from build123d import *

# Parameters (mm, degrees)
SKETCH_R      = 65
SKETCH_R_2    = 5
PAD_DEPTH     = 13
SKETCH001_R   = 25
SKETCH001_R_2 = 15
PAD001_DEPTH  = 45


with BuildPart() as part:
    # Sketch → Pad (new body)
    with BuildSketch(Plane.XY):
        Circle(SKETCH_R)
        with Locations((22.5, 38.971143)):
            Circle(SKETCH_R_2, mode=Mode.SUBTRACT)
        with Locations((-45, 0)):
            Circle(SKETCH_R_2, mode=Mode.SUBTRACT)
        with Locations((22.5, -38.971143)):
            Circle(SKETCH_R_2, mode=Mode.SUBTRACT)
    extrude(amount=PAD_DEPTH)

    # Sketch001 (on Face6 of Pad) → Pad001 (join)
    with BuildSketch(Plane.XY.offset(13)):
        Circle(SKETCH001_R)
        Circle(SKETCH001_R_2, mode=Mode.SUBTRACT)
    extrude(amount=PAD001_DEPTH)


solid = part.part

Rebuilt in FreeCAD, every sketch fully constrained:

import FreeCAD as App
import Part
import Sketcher
from FreeCAD import Vector
Q = App.Units.Quantity

doc = App.newDocument("Part")
body = doc.addObject("PartDesign::Body", "Body")

# Sketch on XY plane
sketch1 = body.newObject("Sketcher::SketchObject", "Sketch")
sketch1.AttachmentSupport = (doc.getObject("XY_Plane"), [""])
sketch1.MapMode = "FlatFace"
sketch1.addGeometry([
    Part.Circle(Vector(0, 0, 0), Vector(0, 0, 1), 65),
    Part.Circle(Vector(22, -39, 0), Vector(0, 0, 1), 5),
    Part.Circle(Vector(-45, 0, 0), Vector(0, 0, 1), 5),
    Part.Circle(Vector(22, 39, 0), Vector(0, 0, 1), 5),
], False)
sketch1.addConstraint([
    Sketcher.Constraint("Coincident", 0, 3, -1, 1),
    Sketcher.Constraint("Equal", 1, 2),
    Sketcher.Constraint("Equal", 2, 3),
    Sketcher.Constraint("Symmetric", 1, 3, 3, 3, -1),
    Sketcher.Constraint("PointOnObject", 2, 3, -1),
    Sketcher.Constraint("Diameter", 0, Q("130 mm")),
    Sketcher.Constraint("Diameter", 1, Q("10 mm")),
    Sketcher.Constraint("DistanceX", 2, 3, -1, 1, Q("45 mm")),
    Sketcher.Constraint("DistanceX", -1, 1, 1, 3, Q("22.5 mm")),
    Sketcher.Constraint("DistanceY", 1, 3, -1, 1, Q("38.971143 mm")),
])
pad1 = body.newObject("PartDesign::Pad", "Pad")
pad1.Profile = sketch1
pad1.Length = 13

# Sketch on XY plane
sketch2 = body.newObject("Sketcher::SketchObject", "Sketch001")
sketch2.AttachmentSupport = (doc.getObject("XY_Plane"), [""])
sketch2.MapMode = "FlatFace"
sketch2.AttachmentOffset = App.Placement(Vector(0, 0, 13), App.Rotation())
sketch2.addGeometry([
    Part.Circle(Vector(0, 0, 0), Vector(0, 0, 1), 25),
    Part.Circle(Vector(0, 0, 0), Vector(0, 0, 1), 15),
], False)
sketch2.addConstraint([
    Sketcher.Constraint("Coincident", 0, 3, -1, 1),
    Sketcher.Constraint("Coincident", 1, 3, -1, 1),
    Sketcher.Constraint("Diameter", 0, Q("50 mm")),
    Sketcher.Constraint("Diameter", 1, Q("30 mm")),
])
pad2 = body.newObject("PartDesign::Pad", "Pad001")
pad2.Profile = sketch2
pad2.Length = 45

doc.recompute()
